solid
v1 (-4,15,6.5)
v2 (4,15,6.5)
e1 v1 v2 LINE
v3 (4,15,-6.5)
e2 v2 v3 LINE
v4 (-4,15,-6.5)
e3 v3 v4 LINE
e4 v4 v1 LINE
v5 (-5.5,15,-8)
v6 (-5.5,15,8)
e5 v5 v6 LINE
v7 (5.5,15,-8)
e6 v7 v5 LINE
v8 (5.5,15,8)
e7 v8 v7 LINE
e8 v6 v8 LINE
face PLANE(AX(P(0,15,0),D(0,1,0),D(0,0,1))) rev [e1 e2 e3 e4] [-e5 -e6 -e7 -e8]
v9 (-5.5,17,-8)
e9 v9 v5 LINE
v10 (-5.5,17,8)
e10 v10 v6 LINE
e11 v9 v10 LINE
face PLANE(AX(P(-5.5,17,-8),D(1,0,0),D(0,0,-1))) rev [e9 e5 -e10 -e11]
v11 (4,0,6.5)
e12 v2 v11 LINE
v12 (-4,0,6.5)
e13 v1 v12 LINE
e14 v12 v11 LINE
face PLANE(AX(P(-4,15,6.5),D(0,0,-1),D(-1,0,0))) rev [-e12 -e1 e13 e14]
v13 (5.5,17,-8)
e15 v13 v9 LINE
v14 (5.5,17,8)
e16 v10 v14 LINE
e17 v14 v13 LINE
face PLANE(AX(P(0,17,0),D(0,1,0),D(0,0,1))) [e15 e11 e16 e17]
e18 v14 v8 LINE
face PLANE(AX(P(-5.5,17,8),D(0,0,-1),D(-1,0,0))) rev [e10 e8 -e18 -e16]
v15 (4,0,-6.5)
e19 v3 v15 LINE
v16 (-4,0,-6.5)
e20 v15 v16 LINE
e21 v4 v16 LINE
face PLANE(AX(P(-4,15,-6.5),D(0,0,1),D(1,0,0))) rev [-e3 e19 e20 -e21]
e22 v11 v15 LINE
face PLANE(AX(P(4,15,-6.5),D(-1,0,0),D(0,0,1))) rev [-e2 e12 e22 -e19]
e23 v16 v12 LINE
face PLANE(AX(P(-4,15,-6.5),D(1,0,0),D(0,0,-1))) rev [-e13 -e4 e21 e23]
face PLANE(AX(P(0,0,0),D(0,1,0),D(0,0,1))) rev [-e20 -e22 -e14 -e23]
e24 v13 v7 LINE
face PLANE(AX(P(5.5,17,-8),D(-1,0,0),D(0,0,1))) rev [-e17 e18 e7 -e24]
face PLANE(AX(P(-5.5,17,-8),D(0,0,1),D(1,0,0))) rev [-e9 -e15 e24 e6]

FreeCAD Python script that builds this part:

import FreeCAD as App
import Part
import Sketcher

V = App.Vector
Q = App.Units.Quantity


def add_polygon(sketch, points):
    """Adds a closed chain of lines whose ends are joined by coincident constraints."""
    first, n = sketch.GeometryCount, len(points)
    for a, b in zip(points, points[1:] + points[:1]):
        sketch.addGeometry(Part.LineSegment(App.Vector(*a, 0), App.Vector(*b, 0)), False)
    for i in range(n):
        sketch.addConstraint(Sketcher.Constraint("Coincident", first + i, 2, first + (i + 1) % n, 1))

doc = App.newDocument("Part")
body = doc.addObject("PartDesign::Body", "Body")

# Sketch on XZ plane
sketch1 = body.newObject("Sketcher::SketchObject", "Sketch")
sketch1.AttachmentSupport = (doc.getObject("XZ_Plane"), [""])
sketch1.MapMode = "FlatFace"
add_polygon(sketch1, [(-4, -6.5), (-4, 6.5), (4, 6.5), (4, -6.5)])  # lines 0-3
sketch1.addConstraint(Sketcher.Constraint("Vertical", 0))
sketch1.addConstraint(Sketcher.Constraint("Horizontal", 1))
sketch1.addConstraint(Sketcher.Constraint("Vertical", 2))
sketch1.addConstraint(Sketcher.Constraint("Horizontal", 3))
sketch1.addConstraint(Sketcher.Constraint("Symmetric", 0, 2, 2, 2, -1, 1))
sketch1.addConstraint(Sketcher.Constraint("DistanceX", 1, 1, 1, 2, Q("8 mm")))
sketch1.addConstraint(Sketcher.Constraint("DistanceY", 0, 1, 0, 2, Q("13 mm")))
pad1 = body.newObject("PartDesign::Pad", "Pad")
pad1.Profile = sketch1
pad1.Length = 15
pad1.Reversed = True

# Sketch on XZ plane
sketch2 = body.newObject("Sketcher::SketchObject", "Sketch001")
sketch2.AttachmentSupport = (doc.getObject("XZ_Plane"), [""])
sketch2.MapMode = "FlatFace"
sketch2.AttachmentOffset = App.Placement(V(0, 0, -15), App.Rotation())
add_polygon(sketch2, [(-5.5, -8), (-5.5, 8), (5.5, 8), (5.5, -8)])  # lines 0-3
sketch2.addConstraint(Sketcher.Constraint("Vertical", 0))
sketch2.addConstraint(Sketcher.Constraint("Horizontal", 1))
sketch2.addConstraint(Sketcher.Constraint("Vertical", 2))
sketch2.addConstraint(Sketcher.Constraint("Horizontal", 3))
sketch2.addConstraint(Sketcher.Constraint("Symmetric", 0, 2, 2, 2, -1, 1))
sketch2.addConstraint(Sketcher.Constraint("DistanceX", 1, 1, 1, 2, Q("11 mm")))
sketch2.addConstraint(Sketcher.Constraint("DistanceY", 0, 1, 0, 2, Q("16 mm")))
pad2 = body.newObject("PartDesign::Pad", "Pad001")
pad2.Profile = sketch2
pad2.Length = 2
pad2.Reversed = True

doc.recompute()
